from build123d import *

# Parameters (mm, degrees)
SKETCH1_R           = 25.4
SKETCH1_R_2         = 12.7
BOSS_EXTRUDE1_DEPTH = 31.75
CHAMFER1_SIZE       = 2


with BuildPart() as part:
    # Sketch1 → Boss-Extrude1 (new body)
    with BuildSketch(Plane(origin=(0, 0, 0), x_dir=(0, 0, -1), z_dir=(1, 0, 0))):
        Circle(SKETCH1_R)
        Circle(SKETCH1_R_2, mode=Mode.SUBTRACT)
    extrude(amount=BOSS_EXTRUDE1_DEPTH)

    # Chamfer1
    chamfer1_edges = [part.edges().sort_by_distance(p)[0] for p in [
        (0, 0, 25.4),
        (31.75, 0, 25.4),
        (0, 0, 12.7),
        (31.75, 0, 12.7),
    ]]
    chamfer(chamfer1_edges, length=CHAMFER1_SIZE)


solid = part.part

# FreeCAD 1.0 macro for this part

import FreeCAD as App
import Part
import Sketcher

V = App.Vector
Q = App.Units.Quantity


def edges_at(feature, points):
    """Names of the edges that pass closest to the given points."""
    edges = feature.Shape.Edges
    near = lambda p: min(range(len(edges)), key=lambda i: edges[i].distToShape(Part.Vertex(*p))[0])
    return sorted({f"Edge{near(p) + 1}" for p in points})

doc = App.newDocument("Part")
body = doc.addObject("PartDesign::Body", "Body")

sketch1 = body.newObject("Sketcher::SketchObject", "Sketch")
sketch1.AttachmentSupport = (doc.getObject("YZ_Plane"), [""])
sketch1.MapMode = "FlatFace"
sketch1.addGeometry(Part.Circle(V(0, 0, 0), V(0, 0, 1), 25.4), False)
sketch1.addGeometry(Part.Circle(V(0, 0, 0), V(0, 0, 1), 12.7), False)
sketch1.addConstraint(Sketcher.Constraint("Coincident", 0, 3, -1, 1))
sketch1.addConstraint(Sketcher.Constraint("Coincident", 1, 3, -1, 1))
sketch1.addConstraint(Sketcher.Constraint("Diameter", 0, Q("2 in")))
sketch1.addConstraint(Sketcher.Constraint("Diameter", 1, Q("1 in")))
pad1 = body.newObject("PartDesign::Pad", "Pad")
pad1.Profile = sketch1
pad1.Length = Q("1.25 in")
doc.recompute()

chamfer = body.newObject("PartDesign::Chamfer", "Chamfer")
chamfer.Base = (pad1, edges_at(pad1, [
    (0, 0, 25.4),
    (31.75, 0, 25.4),
    (0, 0, 12.7),
    (31.75, 0, 12.7),
]))
chamfer.Size = 2

doc.recompute()
